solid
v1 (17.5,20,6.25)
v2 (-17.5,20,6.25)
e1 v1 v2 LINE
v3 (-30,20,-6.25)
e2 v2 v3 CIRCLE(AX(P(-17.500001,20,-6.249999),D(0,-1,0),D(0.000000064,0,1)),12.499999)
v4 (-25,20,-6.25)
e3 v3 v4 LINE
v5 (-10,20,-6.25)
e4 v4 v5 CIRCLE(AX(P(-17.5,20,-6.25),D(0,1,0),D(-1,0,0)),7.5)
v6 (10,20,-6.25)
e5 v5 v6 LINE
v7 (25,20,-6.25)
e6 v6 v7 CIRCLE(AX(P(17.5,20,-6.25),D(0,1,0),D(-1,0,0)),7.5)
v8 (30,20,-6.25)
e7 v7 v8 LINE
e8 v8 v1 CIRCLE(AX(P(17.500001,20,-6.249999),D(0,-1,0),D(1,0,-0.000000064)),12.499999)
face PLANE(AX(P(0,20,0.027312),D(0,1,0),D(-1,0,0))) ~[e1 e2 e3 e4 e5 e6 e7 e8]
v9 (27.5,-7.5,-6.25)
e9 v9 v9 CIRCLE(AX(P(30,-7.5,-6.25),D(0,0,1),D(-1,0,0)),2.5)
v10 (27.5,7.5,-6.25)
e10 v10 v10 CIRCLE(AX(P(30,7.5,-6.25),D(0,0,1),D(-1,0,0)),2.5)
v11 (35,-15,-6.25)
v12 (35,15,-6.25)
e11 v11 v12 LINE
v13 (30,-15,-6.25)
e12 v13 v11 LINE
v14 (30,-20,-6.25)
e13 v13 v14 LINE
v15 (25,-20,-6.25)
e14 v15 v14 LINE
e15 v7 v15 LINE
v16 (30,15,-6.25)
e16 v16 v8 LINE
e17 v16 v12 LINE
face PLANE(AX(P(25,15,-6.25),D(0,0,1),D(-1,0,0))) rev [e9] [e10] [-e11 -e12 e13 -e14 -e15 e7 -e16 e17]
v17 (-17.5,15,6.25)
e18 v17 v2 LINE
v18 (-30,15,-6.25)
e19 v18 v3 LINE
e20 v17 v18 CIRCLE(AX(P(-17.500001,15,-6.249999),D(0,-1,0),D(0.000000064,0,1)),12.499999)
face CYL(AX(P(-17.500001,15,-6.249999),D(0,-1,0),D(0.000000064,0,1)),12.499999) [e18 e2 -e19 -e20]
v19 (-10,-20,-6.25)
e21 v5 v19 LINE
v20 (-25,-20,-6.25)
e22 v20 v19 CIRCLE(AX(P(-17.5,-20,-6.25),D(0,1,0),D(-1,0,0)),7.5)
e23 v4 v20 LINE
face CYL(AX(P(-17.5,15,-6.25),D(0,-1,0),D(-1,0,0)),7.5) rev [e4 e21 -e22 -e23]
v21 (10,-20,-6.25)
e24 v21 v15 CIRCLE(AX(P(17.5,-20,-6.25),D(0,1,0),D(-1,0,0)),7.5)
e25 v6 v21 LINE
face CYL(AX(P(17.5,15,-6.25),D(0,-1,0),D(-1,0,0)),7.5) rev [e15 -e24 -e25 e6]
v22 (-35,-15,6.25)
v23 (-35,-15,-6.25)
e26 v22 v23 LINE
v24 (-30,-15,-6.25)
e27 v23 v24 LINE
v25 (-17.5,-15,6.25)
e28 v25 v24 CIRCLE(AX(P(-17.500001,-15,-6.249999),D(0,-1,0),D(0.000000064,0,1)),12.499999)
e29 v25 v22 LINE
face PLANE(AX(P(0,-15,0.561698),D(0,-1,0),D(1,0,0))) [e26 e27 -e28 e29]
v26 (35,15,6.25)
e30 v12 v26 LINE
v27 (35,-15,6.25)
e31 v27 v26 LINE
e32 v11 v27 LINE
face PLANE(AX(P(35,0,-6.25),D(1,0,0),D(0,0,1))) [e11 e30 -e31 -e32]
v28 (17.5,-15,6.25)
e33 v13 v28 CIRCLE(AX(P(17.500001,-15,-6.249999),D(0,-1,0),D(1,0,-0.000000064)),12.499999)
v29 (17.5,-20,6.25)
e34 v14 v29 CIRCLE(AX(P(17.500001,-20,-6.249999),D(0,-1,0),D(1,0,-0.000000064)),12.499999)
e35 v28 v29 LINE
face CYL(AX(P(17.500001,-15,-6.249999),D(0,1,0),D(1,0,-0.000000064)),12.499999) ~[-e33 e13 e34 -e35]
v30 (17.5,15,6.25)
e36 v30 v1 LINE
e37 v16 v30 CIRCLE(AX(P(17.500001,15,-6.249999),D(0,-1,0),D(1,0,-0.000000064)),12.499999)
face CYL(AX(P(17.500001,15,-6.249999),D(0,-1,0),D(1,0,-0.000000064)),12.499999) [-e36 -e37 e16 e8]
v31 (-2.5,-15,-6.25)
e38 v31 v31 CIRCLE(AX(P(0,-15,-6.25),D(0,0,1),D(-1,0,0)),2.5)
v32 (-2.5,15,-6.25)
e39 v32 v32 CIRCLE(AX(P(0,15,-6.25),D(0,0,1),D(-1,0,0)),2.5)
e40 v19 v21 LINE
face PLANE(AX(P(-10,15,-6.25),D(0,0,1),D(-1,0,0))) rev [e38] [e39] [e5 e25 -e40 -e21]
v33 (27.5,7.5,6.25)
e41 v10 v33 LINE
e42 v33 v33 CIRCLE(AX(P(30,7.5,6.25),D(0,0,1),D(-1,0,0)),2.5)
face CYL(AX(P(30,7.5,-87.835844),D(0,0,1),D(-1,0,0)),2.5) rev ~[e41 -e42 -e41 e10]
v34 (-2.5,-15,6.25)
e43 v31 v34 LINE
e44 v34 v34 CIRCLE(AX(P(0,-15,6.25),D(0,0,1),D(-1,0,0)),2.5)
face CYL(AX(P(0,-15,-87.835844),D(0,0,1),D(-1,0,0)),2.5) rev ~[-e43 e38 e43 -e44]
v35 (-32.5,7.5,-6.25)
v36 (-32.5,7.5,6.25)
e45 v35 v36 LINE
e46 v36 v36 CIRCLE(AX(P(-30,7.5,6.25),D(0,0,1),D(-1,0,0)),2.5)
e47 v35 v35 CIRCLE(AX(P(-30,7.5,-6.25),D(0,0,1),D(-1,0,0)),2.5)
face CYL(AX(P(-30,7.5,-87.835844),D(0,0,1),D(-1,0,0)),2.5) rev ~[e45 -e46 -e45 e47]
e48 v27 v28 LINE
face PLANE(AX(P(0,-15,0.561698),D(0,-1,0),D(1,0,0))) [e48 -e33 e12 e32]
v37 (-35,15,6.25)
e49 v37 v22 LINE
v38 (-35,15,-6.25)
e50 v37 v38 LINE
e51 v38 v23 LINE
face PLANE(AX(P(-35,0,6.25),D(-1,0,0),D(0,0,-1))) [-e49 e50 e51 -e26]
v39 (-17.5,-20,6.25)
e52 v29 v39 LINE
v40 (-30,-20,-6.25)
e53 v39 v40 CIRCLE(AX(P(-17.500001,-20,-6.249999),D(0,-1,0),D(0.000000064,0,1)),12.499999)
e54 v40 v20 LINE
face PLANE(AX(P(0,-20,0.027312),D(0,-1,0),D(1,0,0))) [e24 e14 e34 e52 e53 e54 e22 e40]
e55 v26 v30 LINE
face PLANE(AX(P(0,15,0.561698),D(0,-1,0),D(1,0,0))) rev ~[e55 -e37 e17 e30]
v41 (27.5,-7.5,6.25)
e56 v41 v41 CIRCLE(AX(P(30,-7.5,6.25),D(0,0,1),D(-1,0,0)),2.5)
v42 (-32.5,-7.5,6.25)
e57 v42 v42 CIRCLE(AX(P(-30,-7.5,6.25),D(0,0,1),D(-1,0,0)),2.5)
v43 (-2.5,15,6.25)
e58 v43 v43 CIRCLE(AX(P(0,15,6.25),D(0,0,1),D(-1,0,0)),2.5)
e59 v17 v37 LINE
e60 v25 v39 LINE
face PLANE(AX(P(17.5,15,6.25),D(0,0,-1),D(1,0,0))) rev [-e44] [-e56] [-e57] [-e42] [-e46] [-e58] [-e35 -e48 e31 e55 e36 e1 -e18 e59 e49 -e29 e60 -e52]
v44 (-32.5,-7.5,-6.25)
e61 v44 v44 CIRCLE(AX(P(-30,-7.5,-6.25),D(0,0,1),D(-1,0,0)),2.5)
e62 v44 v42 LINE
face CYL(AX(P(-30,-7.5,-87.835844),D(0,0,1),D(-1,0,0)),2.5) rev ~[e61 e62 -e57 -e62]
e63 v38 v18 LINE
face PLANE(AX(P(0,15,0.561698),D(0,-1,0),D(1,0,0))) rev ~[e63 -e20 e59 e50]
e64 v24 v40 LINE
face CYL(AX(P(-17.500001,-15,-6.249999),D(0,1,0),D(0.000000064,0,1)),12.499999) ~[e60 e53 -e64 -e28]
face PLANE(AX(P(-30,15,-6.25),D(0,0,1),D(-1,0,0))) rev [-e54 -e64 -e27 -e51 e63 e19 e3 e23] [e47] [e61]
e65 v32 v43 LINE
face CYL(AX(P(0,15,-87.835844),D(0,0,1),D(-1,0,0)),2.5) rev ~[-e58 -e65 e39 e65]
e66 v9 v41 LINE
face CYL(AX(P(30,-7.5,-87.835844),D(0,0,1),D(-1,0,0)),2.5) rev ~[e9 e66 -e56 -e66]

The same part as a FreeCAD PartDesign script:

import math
import FreeCAD as App
import Part
import Sketcher

V = App.Vector
Q = App.Units.Quantity

doc = App.newDocument("Part")
body = doc.addObject("PartDesign::Body", "Body")

# Sketch on XZ plane
sketch1 = doc.addObject("Sketcher::SketchObject", "Sketch")
body.addObject(sketch1)
sketch1.AttachmentSupport = (doc.XZ_Plane, [""])
sketch1.MapMode = "FlatFace"
sketch1.addGeometry(Part.LineSegment(V(35, 6, 0), V(-35, 6, 0)), False)
sketch1.addGeometry(Part.LineSegment(V(-35, 6, 0), V(-35, -6, 0)), False)
sketch1.addGeometry(Part.LineSegment(V(-35, -6, 0), V(-25, -6, 0)), False)
sketch1.addGeometry(Part.ArcOfCircle(Part.Circle(V(-18, -6, 0), V(0, 0, 1), 8), math.radians(0), math.radians(180)), False)
sketch1.addGeometry(Part.LineSegment(V(-10, -6, 0), V(10, -6, 0)), False)
sketch1.addGeometry(Part.ArcOfCircle(Part.Circle(V(18, -6, 0), V(0, 0, 1), 8), math.radians(0), math.radians(180)), False)
sketch1.addGeometry(Part.LineSegment(V(25, -6, 0), V(35, -6, 0)), False)
sketch1.addGeometry(Part.LineSegment(V(35, -6, 0), V(35, 6, 0)), False)
sketch1.addConstraint(Sketcher.Constraint("Coincident", 0, 2, 1, 1))
sketch1.addConstraint(Sketcher.Constraint("Coincident", 1, 2, 2, 1))
sketch1.addConstraint(Sketcher.Constraint("Coincident", 2, 2, 3, 2))
sketch1.addConstraint(Sketcher.Constraint("Coincident", 3, 1, 4, 1))
sketch1.addConstraint(Sketcher.Constraint("Coincident", 4, 2, 5, 2))
sketch1.addConstraint(Sketcher.Constraint("Coincident", 5, 1, 6, 1))
sketch1.addConstraint(Sketcher.Constraint("Coincident", 6, 2, 7, 1))
sketch1.addConstraint(Sketcher.Constraint("Coincident", 7, 2, 0, 1))
sketch1.addConstraint(Sketcher.Constraint("Horizontal", 0))
sketch1.addConstraint(Sketcher.Constraint("Vertical", 1))
sketch1.addConstraint(Sketcher.Constraint("Horizontal", 2))
sketch1.addConstraint(Sketcher.Constraint("Horizontal", 4))
sketch1.addConstraint(Sketcher.Constraint("Horizontal", 6))
sketch1.addConstraint(Sketcher.Constraint("Vertical", 7))
sketch1.addConstraint(Sketcher.Constraint("Equal", 3, 5))
sketch1.addConstraint(Sketcher.Constraint("Symmetric", 0, 2, 6, 2, -1, 1))
sketch1.addConstraint(Sketcher.Constraint("Symmetric", 3, 3, 5, 3, -2))
sketch1.addConstraint(Sketcher.Constraint("Horizontal", 5, 3, 1, 2))
sketch1.addConstraint(Sketcher.Constraint("Horizontal", 2, 2, 3, 1))
sketch1.addConstraint(Sketcher.Constraint("Horizontal", 4, 2, 5, 1))
sketch1.addConstraint(Sketcher.Constraint("Radius", 3, Q("7.5 mm")))
sketch1.addConstraint(Sketcher.Constraint("DistanceX", 0, 2, 0, 1, Q("70 mm")))
sketch1.addConstraint(Sketcher.Constraint("DistanceX", 2, 1, 2, 2, Q("10 mm")))
sketch1.addConstraint(Sketcher.Constraint("DistanceY", 1, 2, 1, 1, Q("12.5 mm")))
pad1 = doc.addObject("PartDesign::Pad", "Pad")
body.addObject(pad1)
pad1.Profile = sketch1
pad1.Length = 30
pad1.Midplane = True

# Sketch on XZ plane
sketch2 = doc.addObject("Sketcher::SketchObject", "Sketch001")
body.addObject(sketch2)
sketch2.AttachmentSupport = (doc.XZ_Plane, [""])
sketch2.MapMode = "FlatFace"
sketch2.AttachmentOffset = App.Placement(V(0, 0, 15), App.Rotation())
sketch2.addGeometry(Part.ArcOfCircle(Part.Circle(V(-18, -6, 0), V(0, 0, 1), 12), math.radians(90), math.radians(180)), False)
sketch2.addGeometry(Part.LineSegment(V(-30, -6, 0), V(-25, -6, 0)), False)
sketch2.addGeometry(Part.ArcOfCircle(Part.Circle(V(-18, -6, 0), V(0, 0, 1), 8), math.radians(0), math.radians(180)), False)
sketch2.addGeometry(Part.LineSegment(V(-10, -6, 0), V(10, -6, 0)), False)
sketch2.addGeometry(Part.ArcOfCircle(Part.Circle(V(18, -6, 0), V(0, 0, 1), 8), math.radians(0), math.radians(180)), False)
sketch2.addGeometry(Part.LineSegment(V(25, -6, 0), V(30, -6, 0)), False)
sketch2.addGeometry(Part.ArcOfCircle(Part.Circle(V(18, -6, 0), V(0, 0, 1), 12), math.radians(0), math.radians(90)), False)
sketch2.addGeometry(Part.LineSegment(V(18, 6, 0), V(-18, 6, 0)), False)
sketch2.addConstraint(Sketcher.Constraint("Coincident", 0, 2, 1, 1))
sketch2.addConstraint(Sketcher.Constraint("Coincident", 1, 2, 2, 2))
sketch2.addConstraint(Sketcher.Constraint("Coincident", 2, 1, 3, 1))
sketch2.addConstraint(Sketcher.Constraint("Coincident", 3, 2, 4, 2))
sketch2.addConstraint(Sketcher.Constraint("Coincident", 4, 1, 5, 1))
sketch2.addConstraint(Sketcher.Constraint("Coincident", 5, 2, 6, 1))
sketch2.addConstraint(Sketcher.Constraint("Tangent", 6, 2, 7, 1))
sketch2.addConstraint(Sketcher.Constraint("Tangent", 7, 2, 0, 1))
sketch2.addConstraint(Sketcher.Constraint("Horizontal", 1))
sketch2.addConstraint(Sketcher.Constraint("Horizontal", 3))
sketch2.addConstraint(Sketcher.Constraint("Horizontal", 5))
sketch2.addConstraint(Sketcher.Constraint("Horizontal", 7))
sketch2.addConstraint(Sketcher.Constraint("Coincident", 2, 3, 0, 3))
sketch2.addConstraint(Sketcher.Constraint("Coincident", 6, 3, 4, 3))
sketch2.addConstraint(Sketcher.Constraint("Equal", 2, 4))
sketch2.addConstraint(Sketcher.Constraint("Equal", 0, 6))
sketch2.addConstraint(Sketcher.Constraint("Symmetric", 1, 2, 4, 1, -2))
sketch2.addConstraint(Sketcher.Constraint("Horizontal", 6, 3, 0, 2))
sketch2.addConstraint(Sketcher.Constraint("Horizontal", 1, 2, 2, 1))
sketch2.addConstraint(Sketcher.Constraint("Radius", 0, Q("12.499999 mm")))
sketch2.addConstraint(Sketcher.Constraint("Radius", 2, Q("7.5 mm")))
sketch2.addConstraint(Sketcher.Constraint("DistanceX", 3, 1, 3, 2, Q("20 mm")))
sketch2.addConstraint(Sketcher.Constraint("DistanceY", 0, 3, -1, 1, Q("6.249999 mm")))
pad2 = doc.addObject("PartDesign::Pad", "Pad001")
body.addObject(pad2)
pad2.Profile = sketch2
pad2.Length = 5
body2 = doc.addObject("PartDesign::Body", "Body001")
doc.recompute()

body2.BaseFeature = body
doc.recompute()

mirroring = doc.addObject("Part::Mirroring", "Mirroring")
mirroring.Source = body
mirroring.Base = V(0, 0, 0)
mirroring.Normal = V(0, -1, 0)
body3 = doc.addObject("PartDesign::Body", "Body002")
body3.BaseFeature = mirroring
boolean = doc.addObject("PartDesign::Boolean", "Boolean")
body2.addObject(boolean)
boolean.Type = "Fuse"
boolean.addObjects([body3])
doc.recompute()

# Sketch on XY plane
sketch3 = doc.addObject("Sketcher::SketchObject", "Sketch002")
body2.addObject(sketch3)
sketch3.AttachmentSupport = (doc.getObject("XY_Plane001"), [""])
sketch3.MapMode = "FlatFace"
sketch3.AttachmentOffset = App.Placement(V(0, 0, -6.25), App.Rotation())
sketch3.addGeometry(Part.Circle(V(-30, -7.5, 0), V(0, 0, 1), 2.5), False)
sketch3.addGeometry(Part.Circle(V(-30, 7.5, 0), V(0, 0, 1), 2.5), False)
sketch3.addGeometry(Part.Circle(V(0, -15, 0), V(0, 0, 1), 2.5), False)
sketch3.addGeometry(Part.Circle(V(0, 15, 0), V(0, 0, 1), 2.5), False)
sketch3.addGeometry(Part.Circle(V(30, -7.5, 0), V(0, 0, 1), 2.5), False)
sketch3.addGeometry(Part.Circle(V(30, 7.5, 0), V(0, 0, 1), 2.5), False)
sketch3.addConstraint(Sketcher.Constraint("Equal", 0, 1))
sketch3.addConstraint(Sketcher.Constraint("Equal", 1, 2))
sketch3.addConstraint(Sketcher.Constraint("Equal", 2, 3))
sketch3.addConstraint(Sketcher.Constraint("Equal", 3, 4))
sketch3.addConstraint(Sketcher.Constraint("Equal", 4, 5))
sketch3.addConstraint(Sketcher.Constraint("Symmetric", 2, 3, 3, 3, -1, 1))
sketch3.addConstraint(Sketcher.Constraint("Symmetric", 1, 3, 4, 3, -1, 1))
sketch3.addConstraint(Sketcher.Constraint("Symmetric", 0, 3, 5, 3, -1, 1))
sketch3.addConstraint(Sketcher.Constraint("Symmetric", 0, 3, 4, 3, -2))
sketch3.addConstraint(Sketcher.Constraint("PointOnObject", 2, 3, -2))
sketch3.addConstraint(Sketcher.Constraint("Diameter", 0, Q("5 mm")))
sketch3.addConstraint(Sketcher.Constraint("DistanceX", 0, 3, -1, 1, Q("30 mm")))
sketch3.addConstraint(Sketcher.Constraint("DistanceY", 2, 3, -1, 1, Q("15 mm")))
sketch3.addConstraint(Sketcher.Constraint("DistanceY", 0, 3, 1, 3, Q("15 mm")))
doc.recompute()
hole = doc.addObject("PartDesign::Hole", "Hole")
body2.addObject(hole)
hole.Profile = sketch3
hole.ThreadType = "None"
hole.Diameter = 5
hole.DepthType = "ThroughAll"
hole.Reversed = True
mirroring.Visibility = False

doc.recompute()
